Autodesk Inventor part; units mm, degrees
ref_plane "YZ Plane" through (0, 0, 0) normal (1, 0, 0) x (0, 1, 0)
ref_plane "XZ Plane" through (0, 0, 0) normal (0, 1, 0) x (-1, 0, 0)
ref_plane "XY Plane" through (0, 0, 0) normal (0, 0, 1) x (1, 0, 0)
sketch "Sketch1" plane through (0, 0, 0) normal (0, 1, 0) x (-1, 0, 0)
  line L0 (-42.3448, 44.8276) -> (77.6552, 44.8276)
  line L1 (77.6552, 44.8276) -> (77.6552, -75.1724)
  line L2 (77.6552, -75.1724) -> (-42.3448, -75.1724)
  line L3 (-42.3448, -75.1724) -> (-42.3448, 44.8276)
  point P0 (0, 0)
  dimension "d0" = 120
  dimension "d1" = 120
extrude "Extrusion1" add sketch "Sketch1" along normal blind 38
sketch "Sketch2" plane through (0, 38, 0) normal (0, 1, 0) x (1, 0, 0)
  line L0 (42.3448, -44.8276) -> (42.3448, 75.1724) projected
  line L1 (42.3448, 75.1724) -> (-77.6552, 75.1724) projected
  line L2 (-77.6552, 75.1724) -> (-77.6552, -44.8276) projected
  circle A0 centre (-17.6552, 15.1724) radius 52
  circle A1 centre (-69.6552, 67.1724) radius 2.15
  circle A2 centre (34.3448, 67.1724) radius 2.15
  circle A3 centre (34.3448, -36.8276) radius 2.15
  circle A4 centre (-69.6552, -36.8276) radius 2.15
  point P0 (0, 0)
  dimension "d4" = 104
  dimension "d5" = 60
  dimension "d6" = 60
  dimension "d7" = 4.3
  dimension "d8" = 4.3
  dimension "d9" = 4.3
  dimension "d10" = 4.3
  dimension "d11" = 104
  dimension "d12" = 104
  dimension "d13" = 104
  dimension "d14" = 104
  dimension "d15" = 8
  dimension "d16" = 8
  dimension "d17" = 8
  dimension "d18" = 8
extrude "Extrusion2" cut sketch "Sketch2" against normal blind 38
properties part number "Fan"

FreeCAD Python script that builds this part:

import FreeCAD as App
import Part
import Sketcher

V = App.Vector

doc = App.newDocument("Part")
params = doc.addObject("Spreadsheet::Sheet", "Params")
for row, (alias, value) in enumerate([
    ("sketch1_width", "120 mm"),
    ("pad1_length", "38 mm"),
    ("sketch2_diameter", "104 mm"),
    ("sketch2_diameter2", "4.3 mm"),
    ("pocket1_length", "38 mm"),
], start=1):
    params.set(f"A{row}", alias)
    params.set(f"B{row}", "=" + value)
    params.setAlias(f"B{row}", alias)

body = doc.addObject("PartDesign::Body", "Body")

# Sketch on XZ plane
sketch1 = body.newObject("Sketcher::SketchObject", "Sketch")
sketch1.AttachmentSupport = (doc.getObject("XZ_Plane"), [""])
sketch1.MapMode = "FlatFace"
sketch1.addGeometry([
    Part.LineSegment(V(-77.6552, 44.8276, 0), V(42.3448, 44.8276, 0)),
    Part.LineSegment(V(42.3448, 44.8276, 0), V(42.3448, -75.1724, 0)),
    Part.LineSegment(V(42.3448, -75.1724, 0), V(-77.6552, -75.1724, 0)),
    Part.LineSegment(V(-77.6552, -75.1724, 0), V(-77.6552, 44.8276, 0)),
], False)
sketch1.addConstraint([
    Sketcher.Constraint("Coincident", 0, 2, 1, 1),
    Sketcher.Constraint("Coincident", 1, 2, 2, 1),
    Sketcher.Constraint("Coincident", 2, 2, 3, 1),
    Sketcher.Constraint("Coincident", 3, 2, 0, 1),
    Sketcher.Constraint("Horizontal", 0),
    Sketcher.Constraint("Vertical", 1),
    Sketcher.Constraint("Horizontal", 2),
    Sketcher.Constraint("Vertical", 3),
    Sketcher.Constraint("Equal", 2, 1),
    Sketcher.Constraint("DistanceX", 0, 1, 0, 2, 120.0),
    Sketcher.Constraint("DistanceX", -1, 1, 0, 2, 42.3448),
    Sketcher.Constraint("DistanceY", -1, 1, 0, 2, 44.8276),
])
sketch1.setExpression("Constraints[9]", "Params.sketch1_width")
pad1 = body.newObject("PartDesign::Pad", "Pad")
pad1.Profile = sketch1
pad1.setExpression("Length", "Params.pad1_length")
pad1.Reversed = True

# Sketch on XZ plane
sketch2 = body.newObject("Sketcher::SketchObject", "Sketch001")
sketch2.AttachmentSupport = (doc.getObject("XZ_Plane"), [""])
sketch2.MapMode = "FlatFace"
sketch2.AttachmentOffset = App.Placement(V(0, 0, -38), App.Rotation())
sketch2.addGeometry([
    Part.Circle(V(-17.6552, -15.1724, 0), V(0, 0, 1), 52),  # 0
    Part.Circle(V(-69.6552, -67.1724, 0), V(0, 0, 1), 2.15),  # 1
    Part.Circle(V(34.3448, -67.1724, 0), V(0, 0, 1), 2.15),  # 2
    Part.Circle(V(34.3448, 36.8276, 0), V(0, 0, 1), 2.15),  # 3
    Part.Circle(V(-69.6552, 36.8276, 0), V(0, 0, 1), 2.15),  # 4
], False)
sketch2.addConstraint([
    Sketcher.Constraint("Equal", 1, 2),
    Sketcher.Constraint("Equal", 2, 3),
    Sketcher.Constraint("Equal", 3, 4),
    Sketcher.Constraint("Horizontal", 1, 3, 2, 3),
    Sketcher.Constraint("Horizontal", 3, 3, 4, 3),
    Sketcher.Constraint("Vertical", 2, 3, 3, 3),
    Sketcher.Constraint("Vertical", 1, 3, 4, 3),
    Sketcher.Constraint("Diameter", 0, 104.0),
    Sketcher.Constraint("Diameter", 1, 4.3),
    Sketcher.Constraint("DistanceX", 1, 3, 2, 3, 104.0),
    Sketcher.Constraint("DistanceY", 2, 3, 3, 3, 104.0),
    Sketcher.Constraint("DistanceX", 1, 3, 0, 3, 52.0),
    Sketcher.Constraint("DistanceY", 1, 3, 0, 3, 52.0),
    Sketcher.Constraint("DistanceX", 0, 3, -1, 1, 17.6552),
    Sketcher.Constraint("DistanceY", 0, 3, -1, 1, 15.1724),
])
sketch2.setExpression("Constraints[7]", "Params.sketch2_diameter")
sketch2.setExpression("Constraints[8]", "Params.sketch2_diameter2")
pocket1 = body.newObject("PartDesign::Pocket", "Pocket")
pocket1.Profile = sketch2
pocket1.setExpression("Length", "Params.pocket1_length")
pocket1.Reversed = True

doc.recompute()
